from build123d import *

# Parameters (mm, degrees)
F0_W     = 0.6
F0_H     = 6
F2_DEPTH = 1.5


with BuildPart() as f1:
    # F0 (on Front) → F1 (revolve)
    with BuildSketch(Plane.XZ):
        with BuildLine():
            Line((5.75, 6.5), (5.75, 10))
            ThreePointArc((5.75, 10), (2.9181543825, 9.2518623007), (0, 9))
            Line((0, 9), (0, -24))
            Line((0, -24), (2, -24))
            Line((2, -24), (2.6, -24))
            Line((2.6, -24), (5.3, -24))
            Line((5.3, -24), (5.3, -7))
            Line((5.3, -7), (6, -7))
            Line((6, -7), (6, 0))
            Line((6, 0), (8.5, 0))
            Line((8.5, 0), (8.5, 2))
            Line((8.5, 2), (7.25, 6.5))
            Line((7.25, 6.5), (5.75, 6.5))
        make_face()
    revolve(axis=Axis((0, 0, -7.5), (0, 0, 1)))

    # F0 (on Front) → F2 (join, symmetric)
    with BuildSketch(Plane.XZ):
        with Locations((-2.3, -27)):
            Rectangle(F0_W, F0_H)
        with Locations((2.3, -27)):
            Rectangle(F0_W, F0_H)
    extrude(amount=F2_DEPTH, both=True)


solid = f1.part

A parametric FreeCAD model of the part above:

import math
import FreeCAD as App
import Part
import Sketcher

V = App.Vector

doc = App.newDocument("Part")
body = doc.addObject("PartDesign::Body", "Body")

# Sketch on XZ plane
sketch1 = body.newObject("Sketcher::SketchObject", "Sketch")
sketch1.AttachmentSupport = (doc.getObject("XZ_Plane"), [""])
sketch1.MapMode = "FlatFace"
sketch1.addGeometry([
    Part.LineSegment(V(5.8, 6.5, 0), V(5.8, 10, 0)),  # 0
    Part.ArcOfCircle(Part.Circle(V(0, 26, 0), V(0, 0, 1), 17), math.radians(-90), math.radians(-70.27)),  # 1
    Part.LineSegment(V(0, 9, 0), V(0, -24, 0)),  # 2
    Part.LineSegment(V(0, -24, 0), V(5.3, -24, 0)),  # 3
    Part.LineSegment(V(5.3, -24, 0), V(5.3, -7, 0)),  # 4
    Part.LineSegment(V(5.3, -7, 0), V(6, -7, 0)),  # 5
    Part.LineSegment(V(6, -7, 0), V(6, 0, 0)),  # 6
    Part.LineSegment(V(6, 0, 0), V(8.5, 0, 0)),  # 7
    Part.LineSegment(V(8.5, 0, 0), V(8.5, 2, 0)),  # 8
    Part.LineSegment(V(8.5, 2, 0), V(7.2, 6.5, 0)),  # 9
    Part.LineSegment(V(7.2, 6.5, 0), V(5.8, 6.5, 0)),  # 10
], False)
sketch1.addConstraint([
    Sketcher.Constraint("Coincident", 0, 2, 1, 2),
    Sketcher.Constraint("Coincident", 1, 1, 2, 1),
    Sketcher.Constraint("Coincident", 2, 2, 3, 1),
    Sketcher.Constraint("Coincident", 3, 2, 4, 1),
    Sketcher.Constraint("Coincident", 4, 2, 5, 1),
    Sketcher.Constraint("Coincident", 5, 2, 6, 1),
    Sketcher.Constraint("Coincident", 6, 2, 7, 1),
    Sketcher.Constraint("Coincident", 7, 2, 8, 1),
    Sketcher.Constraint("Coincident", 8, 2, 9, 1),
    Sketcher.Constraint("Coincident", 9, 2, 10, 1),
    Sketcher.Constraint("Coincident", 10, 2, 0, 1),
    Sketcher.Constraint("Vertical", 0),
    Sketcher.Constraint("Vertical", 2),
    Sketcher.Constraint("Horizontal", 3),
    Sketcher.Constraint("Vertical", 4),
    Sketcher.Constraint("Horizontal", 5),
    Sketcher.Constraint("Vertical", 6),
    Sketcher.Constraint("Horizontal", 7),
    Sketcher.Constraint("Vertical", 8),
    Sketcher.Constraint("Horizontal", 10),
    Sketcher.Constraint("PointOnObject", 1, 3, -2),
    Sketcher.Constraint("PointOnObject", 1, 1, -2),
    Sketcher.Constraint("PointOnObject", 6, 2, -1),
    Sketcher.Constraint("DistanceY", 2, 2, 2, 1, 33.0),
    Sketcher.Constraint("DistanceY", 4, 1, 4, 2, 17.0),
    Sketcher.Constraint("DistanceY", 6, 1, 6, 2, 7.0),
    Sketcher.Constraint("DistanceY", 8, 1, 8, 2, 2.0),
    Sketcher.Constraint("DistanceX", 3, 1, 3, 2, 5.3),
    Sketcher.Constraint("DistanceX", 5, 1, 5, 2, 0.7),
    Sketcher.Constraint("DistanceX", 7, 1, 7, 2, 2.5),
    Sketcher.Constraint("DistanceX", 10, 2, 10, 1, 1.5),
    Sketcher.Constraint("DistanceY", 0, 1, 0, 2, 3.5),
    Sketcher.Constraint("DistanceY", -1, 1, 0, 2, 10.0),
    Sketcher.Constraint("DistanceX", -1, 1, 0, 2, 5.75),
])
revolution = body.newObject("PartDesign::Revolution", "Revolution")
revolution.Profile = sketch1
revolution.ReferenceAxis = (sketch1, ["V_Axis"])
revolution.Angle = 360

# Sketch on XZ plane
sketch2 = body.newObject("Sketcher::SketchObject", "Sketch001")
sketch2.AttachmentSupport = (doc.getObject("XZ_Plane"), [""])
sketch2.MapMode = "FlatFace"
sketch2.addGeometry([
    Part.LineSegment(V(-2.6, -24, 0), V(-2.6, -30, 0)),  # 0
    Part.LineSegment(V(-2.6, -30, 0), V(-2, -30, 0)),  # 1
    Part.LineSegment(V(-2, -30, 0), V(-2, -24, 0)),  # 2
    Part.LineSegment(V(-2, -24, 0), V(-2.6, -24, 0)),  # 3
    Part.LineSegment(V(2, -24, 0), V(2, -30, 0)),  # 4
    Part.LineSegment(V(2, -30, 0), V(2.6, -30, 0)),  # 5
    Part.LineSegment(V(2.6, -30, 0), V(2.6, -24, 0)),  # 6
    Part.LineSegment(V(2.6, -24, 0), V(2, -24, 0)),  # 7
], False)
sketch2.addConstraint([
    Sketcher.Constraint("Coincident", 0, 2, 1, 1),
    Sketcher.Constraint("Coincident", 1, 2, 2, 1),
    Sketcher.Constraint("Coincident", 2, 2, 3, 1),
    Sketcher.Constraint("Coincident", 3, 2, 0, 1),
    Sketcher.Constraint("Coincident", 4, 2, 5, 1),
    Sketcher.Constraint("Coincident", 5, 2, 6, 1),
    Sketcher.Constraint("Coincident", 6, 2, 7, 1),
    Sketcher.Constraint("Coincident", 7, 2, 4, 1),
    Sketcher.Constraint("Vertical", 0),
    Sketcher.Constraint("Horizontal", 1),
    Sketcher.Constraint("Vertical", 2),
    Sketcher.Constraint("Horizontal", 3),
    Sketcher.Constraint("Vertical", 4),
    Sketcher.Constraint("Horizontal", 5),
    Sketcher.Constraint("Vertical", 6),
    Sketcher.Constraint("Horizontal", 7),
    Sketcher.Constraint("Symmetric", 1, 2, 4, 2, -2),
    Sketcher.Constraint("Symmetric", 3, 2, 6, 2, -2),
    Sketcher.Constraint("DistanceY", 0, 2, 0, 1, 6.0),
    Sketcher.Constraint("DistanceX", 1, 1, 1, 2, 0.6),
    Sketcher.Constraint("DistanceY", 0, 2, -1, 1, 30.0),
    Sketcher.Constraint("DistanceX", 1, 2, -1, 1, 2.0),
])
pad1 = body.newObject("PartDesign::Pad", "Pad")
pad1.Profile = sketch2
pad1.Length = 3
pad1.Midplane = True

doc.recompute()
